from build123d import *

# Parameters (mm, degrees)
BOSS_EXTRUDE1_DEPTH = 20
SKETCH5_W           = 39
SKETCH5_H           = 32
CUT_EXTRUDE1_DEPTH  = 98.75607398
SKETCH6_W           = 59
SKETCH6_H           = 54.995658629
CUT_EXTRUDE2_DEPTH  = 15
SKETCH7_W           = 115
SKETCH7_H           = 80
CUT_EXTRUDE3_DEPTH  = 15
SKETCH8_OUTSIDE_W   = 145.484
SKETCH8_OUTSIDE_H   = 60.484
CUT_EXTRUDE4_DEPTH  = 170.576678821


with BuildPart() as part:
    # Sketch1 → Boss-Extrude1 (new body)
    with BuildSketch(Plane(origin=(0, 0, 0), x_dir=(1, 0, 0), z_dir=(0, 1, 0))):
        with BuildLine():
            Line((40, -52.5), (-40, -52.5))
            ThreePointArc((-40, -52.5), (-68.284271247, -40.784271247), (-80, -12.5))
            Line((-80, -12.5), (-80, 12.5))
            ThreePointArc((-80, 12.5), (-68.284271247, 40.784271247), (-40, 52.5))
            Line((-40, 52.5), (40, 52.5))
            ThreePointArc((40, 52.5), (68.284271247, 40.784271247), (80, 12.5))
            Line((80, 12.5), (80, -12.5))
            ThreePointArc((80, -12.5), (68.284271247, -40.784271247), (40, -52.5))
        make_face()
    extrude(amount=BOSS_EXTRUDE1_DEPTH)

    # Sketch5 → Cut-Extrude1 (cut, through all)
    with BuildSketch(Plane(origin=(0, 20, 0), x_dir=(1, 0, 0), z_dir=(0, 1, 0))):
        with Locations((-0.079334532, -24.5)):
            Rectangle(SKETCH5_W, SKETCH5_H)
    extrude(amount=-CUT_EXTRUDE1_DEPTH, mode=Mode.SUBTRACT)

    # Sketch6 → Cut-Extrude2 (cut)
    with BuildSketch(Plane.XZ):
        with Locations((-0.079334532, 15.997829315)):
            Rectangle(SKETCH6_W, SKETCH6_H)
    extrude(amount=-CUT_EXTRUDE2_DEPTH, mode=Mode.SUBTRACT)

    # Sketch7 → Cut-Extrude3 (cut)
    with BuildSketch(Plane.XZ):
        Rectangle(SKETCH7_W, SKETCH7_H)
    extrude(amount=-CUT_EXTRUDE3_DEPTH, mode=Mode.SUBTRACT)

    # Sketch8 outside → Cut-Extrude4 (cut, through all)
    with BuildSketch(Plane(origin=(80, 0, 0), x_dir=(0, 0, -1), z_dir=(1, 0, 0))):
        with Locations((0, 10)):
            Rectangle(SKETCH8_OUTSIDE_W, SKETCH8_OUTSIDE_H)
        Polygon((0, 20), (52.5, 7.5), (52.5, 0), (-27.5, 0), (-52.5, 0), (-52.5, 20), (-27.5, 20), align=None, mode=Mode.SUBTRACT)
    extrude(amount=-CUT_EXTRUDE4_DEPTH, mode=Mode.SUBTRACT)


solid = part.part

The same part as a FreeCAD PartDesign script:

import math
import FreeCAD as App
import Part
import Sketcher

V = App.Vector

doc = App.newDocument("Part")
body = doc.addObject("PartDesign::Body", "Body")

# Sketch on XZ plane
sketch1 = body.newObject("Sketcher::SketchObject", "Sketch")
sketch1.AttachmentSupport = (doc.getObject("XZ_Plane"), [""])
sketch1.MapMode = "FlatFace"
sketch1.addGeometry([
    Part.LineSegment(V(-40, 52, 0), V(40, 52, 0)),  # 0
    Part.ArcOfCircle(Part.Circle(V(40, 12, 0), V(0, 0, 1), 40), math.radians(0), math.radians(90)),  # 1
    Part.LineSegment(V(80, 12, 0), V(80, -12, 0)),  # 2
    Part.ArcOfCircle(Part.Circle(V(40, -12, 0), V(0, 0, 1), 40), math.radians(-90), math.radians(0)),  # 3
    Part.LineSegment(V(40, -52, 0), V(-40, -52, 0)),  # 4
    Part.ArcOfCircle(Part.Circle(V(-40, -12, 0), V(0, 0, 1), 40), math.radians(-180), math.radians(-90)),  # 5
    Part.LineSegment(V(-80, -12, 0), V(-80, 12, 0)),  # 6
    Part.ArcOfCircle(Part.Circle(V(-40, 12, 0), V(0, 0, 1), 40), math.radians(90), math.radians(180)),  # 7
], False)
sketch1.addConstraint([
    Sketcher.Constraint("Tangent", 0, 2, 1, 2),
    Sketcher.Constraint("Tangent", 1, 1, 2, 1),
    Sketcher.Constraint("Tangent", 2, 2, 3, 2),
    Sketcher.Constraint("Tangent", 3, 1, 4, 1),
    Sketcher.Constraint("Tangent", 4, 2, 5, 2),
    Sketcher.Constraint("Tangent", 5, 1, 6, 1),
    Sketcher.Constraint("Tangent", 6, 2, 7, 2),
    Sketcher.Constraint("Tangent", 7, 1, 0, 1),
    Sketcher.Constraint("Horizontal", 0),
    Sketcher.Constraint("Vertical", 2),
    Sketcher.Constraint("Horizontal", 4),
    Sketcher.Constraint("Vertical", 6),
    Sketcher.Constraint("Equal", 1, 3),
    Sketcher.Constraint("Equal", 3, 5),
    Sketcher.Constraint("Equal", 5, 7),
    Sketcher.Constraint("Symmetric", 1, 3, 5, 3, -1, 1),
    Sketcher.Constraint("Radius", 1, 40.0),
    Sketcher.Constraint("DistanceX", 0, 1, 0, 2, 80.0),
    Sketcher.Constraint("DistanceY", 2, 2, 2, 1, 25.0),
])
pad1 = body.newObject("PartDesign::Pad", "Pad")
pad1.Profile = sketch1
pad1.Length = 20
pad1.Reversed = True

# Sketch on XZ plane
sketch2 = body.newObject("Sketcher::SketchObject", "Sketch001")
sketch2.AttachmentSupport = (doc.getObject("XZ_Plane"), [""])
sketch2.MapMode = "FlatFace"
sketch2.AttachmentOffset = App.Placement(V(0, 0, -20), App.Rotation())
sketch2.addGeometry([
    Part.LineSegment(V(-20, 8, 0), V(-20, 40, 0)),
    Part.LineSegment(V(-20, 40, 0), V(19, 40, 0)),
    Part.LineSegment(V(19, 40, 0), V(19, 8, 0)),
    Part.LineSegment(V(19, 8, 0), V(-20, 8, 0)),
], False)
sketch2.addConstraint([
    Sketcher.Constraint("Coincident", 0, 2, 1, 1),
    Sketcher.Constraint("Coincident", 1, 2, 2, 1),
    Sketcher.Constraint("Coincident", 2, 2, 3, 1),
    Sketcher.Constraint("Coincident", 3, 2, 0, 1),
    Sketcher.Constraint("Vertical", 0),
    Sketcher.Constraint("Horizontal", 1),
    Sketcher.Constraint("Vertical", 2),
    Sketcher.Constraint("Horizontal", 3),
    Sketcher.Constraint("DistanceX", 1, 1, 1, 2, 39.0),
    Sketcher.Constraint("DistanceY", 0, 1, 0, 2, 32.0),
    Sketcher.Constraint("DistanceY", -1, 1, 0, 2, 40.5),
    Sketcher.Constraint("DistanceX", 0, 2, -1, 1, 19.579335),
])
pocket1 = body.newObject("PartDesign::Pocket", "Pocket")
pocket1.Profile = sketch2
pocket1.Type = "ThroughAll"
pocket1.Reversed = True

# Sketch on XZ plane
sketch3 = body.newObject("Sketcher::SketchObject", "Sketch002")
sketch3.AttachmentSupport = (doc.getObject("XZ_Plane"), [""])
sketch3.MapMode = "FlatFace"
sketch3.addGeometry([
    Part.LineSegment(V(-30, 43, 0), V(-30, -11, 0)),
    Part.LineSegment(V(-30, -11, 0), V(29, -11, 0)),
    Part.LineSegment(V(29, -11, 0), V(29, 43, 0)),
    Part.LineSegment(V(29, 43, 0), V(-30, 43, 0)),
], False)
sketch3.addConstraint([
    Sketcher.Constraint("Coincident", 0, 2, 1, 1),
    Sketcher.Constraint("Coincident", 1, 2, 2, 1),
    Sketcher.Constraint("Coincident", 2, 2, 3, 1),
    Sketcher.Constraint("Coincident", 3, 2, 0, 1),
    Sketcher.Constraint("Vertical", 0),
    Sketcher.Constraint("Horizontal", 1),
    Sketcher.Constraint("Vertical", 2),
    Sketcher.Constraint("Horizontal", 3),
    Sketcher.Constraint("DistanceX", 1, 1, 1, 2, 59.0),
    Sketcher.Constraint("DistanceY", 0, 2, -1, 1, 11.5),
    Sketcher.Constraint("DistanceY", 0, 2, 0, 1, 54.995659),
    Sketcher.Constraint("DistanceX", 0, 2, -1, 1, 29.579335),
])
pocket2 = body.newObject("PartDesign::Pocket", "Pocket001")
pocket2.Profile = sketch3
pocket2.Length = 15

# Sketch on XZ plane
sketch4 = body.newObject("Sketcher::SketchObject", "Sketch003")
sketch4.AttachmentSupport = (doc.getObject("XZ_Plane"), [""])
sketch4.MapMode = "FlatFace"
sketch4.addGeometry([
    Part.LineSegment(V(-58, 40, 0), V(-58, -40, 0)),
    Part.LineSegment(V(-58, -40, 0), V(58, -40, 0)),
    Part.LineSegment(V(58, -40, 0), V(58, 40, 0)),
    Part.LineSegment(V(58, 40, 0), V(-58, 40, 0)),
], False)
sketch4.addConstraint([
    Sketcher.Constraint("Coincident", 0, 2, 1, 1),
    Sketcher.Constraint("Coincident", 1, 2, 2, 1),
    Sketcher.Constraint("Coincident", 2, 2, 3, 1),
    Sketcher.Constraint("Coincident", 3, 2, 0, 1),
    Sketcher.Constraint("Vertical", 0),
    Sketcher.Constraint("Horizontal", 1),
    Sketcher.Constraint("Vertical", 2),
    Sketcher.Constraint("Horizontal", 3),
    Sketcher.Constraint("Symmetric", 0, 2, 2, 2, -1, 1),
    Sketcher.Constraint("DistanceX", 1, 1, 1, 2, 115.0),
    Sketcher.Constraint("DistanceY", 0, 2, 0, 1, 80.0),
])
pocket3 = body.newObject("PartDesign::Pocket", "Pocket002")
pocket3.Profile = sketch4
pocket3.Length = 15

# Sketch on YZ plane
sketch5 = body.newObject("Sketcher::SketchObject", "Sketch004")
sketch5.AttachmentSupport = (doc.getObject("YZ_Plane"), [""])
sketch5.MapMode = "FlatFace"
sketch5.AttachmentOffset = App.Placement(V(0, 0, 80), App.Rotation())
sketch5.addGeometry([
    Part.LineSegment(V(40, 73, 0), V(-20, 73, 0)),  # 0
    Part.LineSegment(V(-20, 73, 0), V(-20, -73, 0)),  # 1
    Part.LineSegment(V(-20, -73, 0), V(40, -73, 0)),  # 2
    Part.LineSegment(V(40, -73, 0), V(40, 73, 0)),  # 3
    Part.LineSegment(V(20, 52, 0), V(20, 0, 0)),  # 4
    Part.LineSegment(V(20, 0, 0), V(8, -52, 0)),  # 5
    Part.LineSegment(V(8, -52, 0), V(0, -52, 0)),  # 6
    Part.LineSegment(V(0, -52, 0), V(0, 52, 0)),  # 7
    Part.LineSegment(V(0, 52, 0), V(20, 52, 0)),  # 8
], False)
sketch5.addConstraint([
    Sketcher.Constraint("Coincident", 0, 2, 1, 1),
    Sketcher.Constraint("Coincident", 1, 2, 2, 1),
    Sketcher.Constraint("Coincident", 2, 2, 3, 1),
    Sketcher.Constraint("Coincident", 3, 2, 0, 1),
    Sketcher.Constraint("Coincident", 4, 2, 5, 1),
    Sketcher.Constraint("Coincident", 5, 2, 6, 1),
    Sketcher.Constraint("Coincident", 6, 2, 7, 1),
    Sketcher.Constraint("Coincident", 7, 2, 8, 1),
    Sketcher.Constraint("Coincident", 8, 2, 4, 1),
    Sketcher.Constraint("Horizontal", 0),
    Sketcher.Constraint("Vertical", 1),
    Sketcher.Constraint("Horizontal", 2),
    Sketcher.Constraint("Vertical", 3),
    Sketcher.Constraint("Vertical", 4),
    Sketcher.Constraint("Horizontal", 6),
    Sketcher.Constraint("Vertical", 7),
    Sketcher.Constraint("Horizontal", 8),
    Sketcher.Constraint("Symmetric", 6, 2, 7, 2, -1, 1),
    Sketcher.Constraint("PointOnObject", 4, 2, -1),
    Sketcher.Constraint("DistanceX", 8, 1, 8, 2, 20.0),
    Sketcher.Constraint("DistanceY", 7, 1, 7, 2, 105.0),
    Sketcher.Constraint("DistanceX", 6, 2, 6, 1, 7.5),
    Sketcher.Constraint("DistanceX", 0, 2, 0, 1, 60.484),
    Sketcher.Constraint("DistanceY", 1, 2, 1, 1, 145.484),
    Sketcher.Constraint("DistanceX", 0, 2, -1, 1, 20.242),
    Sketcher.Constraint("DistanceY", -1, 1, 0, 2, 72.742),
])
pocket4 = body.newObject("PartDesign::Pocket", "Pocket003")
pocket4.Profile = sketch5
pocket4.Type = "ThroughAll"

doc.recompute()
